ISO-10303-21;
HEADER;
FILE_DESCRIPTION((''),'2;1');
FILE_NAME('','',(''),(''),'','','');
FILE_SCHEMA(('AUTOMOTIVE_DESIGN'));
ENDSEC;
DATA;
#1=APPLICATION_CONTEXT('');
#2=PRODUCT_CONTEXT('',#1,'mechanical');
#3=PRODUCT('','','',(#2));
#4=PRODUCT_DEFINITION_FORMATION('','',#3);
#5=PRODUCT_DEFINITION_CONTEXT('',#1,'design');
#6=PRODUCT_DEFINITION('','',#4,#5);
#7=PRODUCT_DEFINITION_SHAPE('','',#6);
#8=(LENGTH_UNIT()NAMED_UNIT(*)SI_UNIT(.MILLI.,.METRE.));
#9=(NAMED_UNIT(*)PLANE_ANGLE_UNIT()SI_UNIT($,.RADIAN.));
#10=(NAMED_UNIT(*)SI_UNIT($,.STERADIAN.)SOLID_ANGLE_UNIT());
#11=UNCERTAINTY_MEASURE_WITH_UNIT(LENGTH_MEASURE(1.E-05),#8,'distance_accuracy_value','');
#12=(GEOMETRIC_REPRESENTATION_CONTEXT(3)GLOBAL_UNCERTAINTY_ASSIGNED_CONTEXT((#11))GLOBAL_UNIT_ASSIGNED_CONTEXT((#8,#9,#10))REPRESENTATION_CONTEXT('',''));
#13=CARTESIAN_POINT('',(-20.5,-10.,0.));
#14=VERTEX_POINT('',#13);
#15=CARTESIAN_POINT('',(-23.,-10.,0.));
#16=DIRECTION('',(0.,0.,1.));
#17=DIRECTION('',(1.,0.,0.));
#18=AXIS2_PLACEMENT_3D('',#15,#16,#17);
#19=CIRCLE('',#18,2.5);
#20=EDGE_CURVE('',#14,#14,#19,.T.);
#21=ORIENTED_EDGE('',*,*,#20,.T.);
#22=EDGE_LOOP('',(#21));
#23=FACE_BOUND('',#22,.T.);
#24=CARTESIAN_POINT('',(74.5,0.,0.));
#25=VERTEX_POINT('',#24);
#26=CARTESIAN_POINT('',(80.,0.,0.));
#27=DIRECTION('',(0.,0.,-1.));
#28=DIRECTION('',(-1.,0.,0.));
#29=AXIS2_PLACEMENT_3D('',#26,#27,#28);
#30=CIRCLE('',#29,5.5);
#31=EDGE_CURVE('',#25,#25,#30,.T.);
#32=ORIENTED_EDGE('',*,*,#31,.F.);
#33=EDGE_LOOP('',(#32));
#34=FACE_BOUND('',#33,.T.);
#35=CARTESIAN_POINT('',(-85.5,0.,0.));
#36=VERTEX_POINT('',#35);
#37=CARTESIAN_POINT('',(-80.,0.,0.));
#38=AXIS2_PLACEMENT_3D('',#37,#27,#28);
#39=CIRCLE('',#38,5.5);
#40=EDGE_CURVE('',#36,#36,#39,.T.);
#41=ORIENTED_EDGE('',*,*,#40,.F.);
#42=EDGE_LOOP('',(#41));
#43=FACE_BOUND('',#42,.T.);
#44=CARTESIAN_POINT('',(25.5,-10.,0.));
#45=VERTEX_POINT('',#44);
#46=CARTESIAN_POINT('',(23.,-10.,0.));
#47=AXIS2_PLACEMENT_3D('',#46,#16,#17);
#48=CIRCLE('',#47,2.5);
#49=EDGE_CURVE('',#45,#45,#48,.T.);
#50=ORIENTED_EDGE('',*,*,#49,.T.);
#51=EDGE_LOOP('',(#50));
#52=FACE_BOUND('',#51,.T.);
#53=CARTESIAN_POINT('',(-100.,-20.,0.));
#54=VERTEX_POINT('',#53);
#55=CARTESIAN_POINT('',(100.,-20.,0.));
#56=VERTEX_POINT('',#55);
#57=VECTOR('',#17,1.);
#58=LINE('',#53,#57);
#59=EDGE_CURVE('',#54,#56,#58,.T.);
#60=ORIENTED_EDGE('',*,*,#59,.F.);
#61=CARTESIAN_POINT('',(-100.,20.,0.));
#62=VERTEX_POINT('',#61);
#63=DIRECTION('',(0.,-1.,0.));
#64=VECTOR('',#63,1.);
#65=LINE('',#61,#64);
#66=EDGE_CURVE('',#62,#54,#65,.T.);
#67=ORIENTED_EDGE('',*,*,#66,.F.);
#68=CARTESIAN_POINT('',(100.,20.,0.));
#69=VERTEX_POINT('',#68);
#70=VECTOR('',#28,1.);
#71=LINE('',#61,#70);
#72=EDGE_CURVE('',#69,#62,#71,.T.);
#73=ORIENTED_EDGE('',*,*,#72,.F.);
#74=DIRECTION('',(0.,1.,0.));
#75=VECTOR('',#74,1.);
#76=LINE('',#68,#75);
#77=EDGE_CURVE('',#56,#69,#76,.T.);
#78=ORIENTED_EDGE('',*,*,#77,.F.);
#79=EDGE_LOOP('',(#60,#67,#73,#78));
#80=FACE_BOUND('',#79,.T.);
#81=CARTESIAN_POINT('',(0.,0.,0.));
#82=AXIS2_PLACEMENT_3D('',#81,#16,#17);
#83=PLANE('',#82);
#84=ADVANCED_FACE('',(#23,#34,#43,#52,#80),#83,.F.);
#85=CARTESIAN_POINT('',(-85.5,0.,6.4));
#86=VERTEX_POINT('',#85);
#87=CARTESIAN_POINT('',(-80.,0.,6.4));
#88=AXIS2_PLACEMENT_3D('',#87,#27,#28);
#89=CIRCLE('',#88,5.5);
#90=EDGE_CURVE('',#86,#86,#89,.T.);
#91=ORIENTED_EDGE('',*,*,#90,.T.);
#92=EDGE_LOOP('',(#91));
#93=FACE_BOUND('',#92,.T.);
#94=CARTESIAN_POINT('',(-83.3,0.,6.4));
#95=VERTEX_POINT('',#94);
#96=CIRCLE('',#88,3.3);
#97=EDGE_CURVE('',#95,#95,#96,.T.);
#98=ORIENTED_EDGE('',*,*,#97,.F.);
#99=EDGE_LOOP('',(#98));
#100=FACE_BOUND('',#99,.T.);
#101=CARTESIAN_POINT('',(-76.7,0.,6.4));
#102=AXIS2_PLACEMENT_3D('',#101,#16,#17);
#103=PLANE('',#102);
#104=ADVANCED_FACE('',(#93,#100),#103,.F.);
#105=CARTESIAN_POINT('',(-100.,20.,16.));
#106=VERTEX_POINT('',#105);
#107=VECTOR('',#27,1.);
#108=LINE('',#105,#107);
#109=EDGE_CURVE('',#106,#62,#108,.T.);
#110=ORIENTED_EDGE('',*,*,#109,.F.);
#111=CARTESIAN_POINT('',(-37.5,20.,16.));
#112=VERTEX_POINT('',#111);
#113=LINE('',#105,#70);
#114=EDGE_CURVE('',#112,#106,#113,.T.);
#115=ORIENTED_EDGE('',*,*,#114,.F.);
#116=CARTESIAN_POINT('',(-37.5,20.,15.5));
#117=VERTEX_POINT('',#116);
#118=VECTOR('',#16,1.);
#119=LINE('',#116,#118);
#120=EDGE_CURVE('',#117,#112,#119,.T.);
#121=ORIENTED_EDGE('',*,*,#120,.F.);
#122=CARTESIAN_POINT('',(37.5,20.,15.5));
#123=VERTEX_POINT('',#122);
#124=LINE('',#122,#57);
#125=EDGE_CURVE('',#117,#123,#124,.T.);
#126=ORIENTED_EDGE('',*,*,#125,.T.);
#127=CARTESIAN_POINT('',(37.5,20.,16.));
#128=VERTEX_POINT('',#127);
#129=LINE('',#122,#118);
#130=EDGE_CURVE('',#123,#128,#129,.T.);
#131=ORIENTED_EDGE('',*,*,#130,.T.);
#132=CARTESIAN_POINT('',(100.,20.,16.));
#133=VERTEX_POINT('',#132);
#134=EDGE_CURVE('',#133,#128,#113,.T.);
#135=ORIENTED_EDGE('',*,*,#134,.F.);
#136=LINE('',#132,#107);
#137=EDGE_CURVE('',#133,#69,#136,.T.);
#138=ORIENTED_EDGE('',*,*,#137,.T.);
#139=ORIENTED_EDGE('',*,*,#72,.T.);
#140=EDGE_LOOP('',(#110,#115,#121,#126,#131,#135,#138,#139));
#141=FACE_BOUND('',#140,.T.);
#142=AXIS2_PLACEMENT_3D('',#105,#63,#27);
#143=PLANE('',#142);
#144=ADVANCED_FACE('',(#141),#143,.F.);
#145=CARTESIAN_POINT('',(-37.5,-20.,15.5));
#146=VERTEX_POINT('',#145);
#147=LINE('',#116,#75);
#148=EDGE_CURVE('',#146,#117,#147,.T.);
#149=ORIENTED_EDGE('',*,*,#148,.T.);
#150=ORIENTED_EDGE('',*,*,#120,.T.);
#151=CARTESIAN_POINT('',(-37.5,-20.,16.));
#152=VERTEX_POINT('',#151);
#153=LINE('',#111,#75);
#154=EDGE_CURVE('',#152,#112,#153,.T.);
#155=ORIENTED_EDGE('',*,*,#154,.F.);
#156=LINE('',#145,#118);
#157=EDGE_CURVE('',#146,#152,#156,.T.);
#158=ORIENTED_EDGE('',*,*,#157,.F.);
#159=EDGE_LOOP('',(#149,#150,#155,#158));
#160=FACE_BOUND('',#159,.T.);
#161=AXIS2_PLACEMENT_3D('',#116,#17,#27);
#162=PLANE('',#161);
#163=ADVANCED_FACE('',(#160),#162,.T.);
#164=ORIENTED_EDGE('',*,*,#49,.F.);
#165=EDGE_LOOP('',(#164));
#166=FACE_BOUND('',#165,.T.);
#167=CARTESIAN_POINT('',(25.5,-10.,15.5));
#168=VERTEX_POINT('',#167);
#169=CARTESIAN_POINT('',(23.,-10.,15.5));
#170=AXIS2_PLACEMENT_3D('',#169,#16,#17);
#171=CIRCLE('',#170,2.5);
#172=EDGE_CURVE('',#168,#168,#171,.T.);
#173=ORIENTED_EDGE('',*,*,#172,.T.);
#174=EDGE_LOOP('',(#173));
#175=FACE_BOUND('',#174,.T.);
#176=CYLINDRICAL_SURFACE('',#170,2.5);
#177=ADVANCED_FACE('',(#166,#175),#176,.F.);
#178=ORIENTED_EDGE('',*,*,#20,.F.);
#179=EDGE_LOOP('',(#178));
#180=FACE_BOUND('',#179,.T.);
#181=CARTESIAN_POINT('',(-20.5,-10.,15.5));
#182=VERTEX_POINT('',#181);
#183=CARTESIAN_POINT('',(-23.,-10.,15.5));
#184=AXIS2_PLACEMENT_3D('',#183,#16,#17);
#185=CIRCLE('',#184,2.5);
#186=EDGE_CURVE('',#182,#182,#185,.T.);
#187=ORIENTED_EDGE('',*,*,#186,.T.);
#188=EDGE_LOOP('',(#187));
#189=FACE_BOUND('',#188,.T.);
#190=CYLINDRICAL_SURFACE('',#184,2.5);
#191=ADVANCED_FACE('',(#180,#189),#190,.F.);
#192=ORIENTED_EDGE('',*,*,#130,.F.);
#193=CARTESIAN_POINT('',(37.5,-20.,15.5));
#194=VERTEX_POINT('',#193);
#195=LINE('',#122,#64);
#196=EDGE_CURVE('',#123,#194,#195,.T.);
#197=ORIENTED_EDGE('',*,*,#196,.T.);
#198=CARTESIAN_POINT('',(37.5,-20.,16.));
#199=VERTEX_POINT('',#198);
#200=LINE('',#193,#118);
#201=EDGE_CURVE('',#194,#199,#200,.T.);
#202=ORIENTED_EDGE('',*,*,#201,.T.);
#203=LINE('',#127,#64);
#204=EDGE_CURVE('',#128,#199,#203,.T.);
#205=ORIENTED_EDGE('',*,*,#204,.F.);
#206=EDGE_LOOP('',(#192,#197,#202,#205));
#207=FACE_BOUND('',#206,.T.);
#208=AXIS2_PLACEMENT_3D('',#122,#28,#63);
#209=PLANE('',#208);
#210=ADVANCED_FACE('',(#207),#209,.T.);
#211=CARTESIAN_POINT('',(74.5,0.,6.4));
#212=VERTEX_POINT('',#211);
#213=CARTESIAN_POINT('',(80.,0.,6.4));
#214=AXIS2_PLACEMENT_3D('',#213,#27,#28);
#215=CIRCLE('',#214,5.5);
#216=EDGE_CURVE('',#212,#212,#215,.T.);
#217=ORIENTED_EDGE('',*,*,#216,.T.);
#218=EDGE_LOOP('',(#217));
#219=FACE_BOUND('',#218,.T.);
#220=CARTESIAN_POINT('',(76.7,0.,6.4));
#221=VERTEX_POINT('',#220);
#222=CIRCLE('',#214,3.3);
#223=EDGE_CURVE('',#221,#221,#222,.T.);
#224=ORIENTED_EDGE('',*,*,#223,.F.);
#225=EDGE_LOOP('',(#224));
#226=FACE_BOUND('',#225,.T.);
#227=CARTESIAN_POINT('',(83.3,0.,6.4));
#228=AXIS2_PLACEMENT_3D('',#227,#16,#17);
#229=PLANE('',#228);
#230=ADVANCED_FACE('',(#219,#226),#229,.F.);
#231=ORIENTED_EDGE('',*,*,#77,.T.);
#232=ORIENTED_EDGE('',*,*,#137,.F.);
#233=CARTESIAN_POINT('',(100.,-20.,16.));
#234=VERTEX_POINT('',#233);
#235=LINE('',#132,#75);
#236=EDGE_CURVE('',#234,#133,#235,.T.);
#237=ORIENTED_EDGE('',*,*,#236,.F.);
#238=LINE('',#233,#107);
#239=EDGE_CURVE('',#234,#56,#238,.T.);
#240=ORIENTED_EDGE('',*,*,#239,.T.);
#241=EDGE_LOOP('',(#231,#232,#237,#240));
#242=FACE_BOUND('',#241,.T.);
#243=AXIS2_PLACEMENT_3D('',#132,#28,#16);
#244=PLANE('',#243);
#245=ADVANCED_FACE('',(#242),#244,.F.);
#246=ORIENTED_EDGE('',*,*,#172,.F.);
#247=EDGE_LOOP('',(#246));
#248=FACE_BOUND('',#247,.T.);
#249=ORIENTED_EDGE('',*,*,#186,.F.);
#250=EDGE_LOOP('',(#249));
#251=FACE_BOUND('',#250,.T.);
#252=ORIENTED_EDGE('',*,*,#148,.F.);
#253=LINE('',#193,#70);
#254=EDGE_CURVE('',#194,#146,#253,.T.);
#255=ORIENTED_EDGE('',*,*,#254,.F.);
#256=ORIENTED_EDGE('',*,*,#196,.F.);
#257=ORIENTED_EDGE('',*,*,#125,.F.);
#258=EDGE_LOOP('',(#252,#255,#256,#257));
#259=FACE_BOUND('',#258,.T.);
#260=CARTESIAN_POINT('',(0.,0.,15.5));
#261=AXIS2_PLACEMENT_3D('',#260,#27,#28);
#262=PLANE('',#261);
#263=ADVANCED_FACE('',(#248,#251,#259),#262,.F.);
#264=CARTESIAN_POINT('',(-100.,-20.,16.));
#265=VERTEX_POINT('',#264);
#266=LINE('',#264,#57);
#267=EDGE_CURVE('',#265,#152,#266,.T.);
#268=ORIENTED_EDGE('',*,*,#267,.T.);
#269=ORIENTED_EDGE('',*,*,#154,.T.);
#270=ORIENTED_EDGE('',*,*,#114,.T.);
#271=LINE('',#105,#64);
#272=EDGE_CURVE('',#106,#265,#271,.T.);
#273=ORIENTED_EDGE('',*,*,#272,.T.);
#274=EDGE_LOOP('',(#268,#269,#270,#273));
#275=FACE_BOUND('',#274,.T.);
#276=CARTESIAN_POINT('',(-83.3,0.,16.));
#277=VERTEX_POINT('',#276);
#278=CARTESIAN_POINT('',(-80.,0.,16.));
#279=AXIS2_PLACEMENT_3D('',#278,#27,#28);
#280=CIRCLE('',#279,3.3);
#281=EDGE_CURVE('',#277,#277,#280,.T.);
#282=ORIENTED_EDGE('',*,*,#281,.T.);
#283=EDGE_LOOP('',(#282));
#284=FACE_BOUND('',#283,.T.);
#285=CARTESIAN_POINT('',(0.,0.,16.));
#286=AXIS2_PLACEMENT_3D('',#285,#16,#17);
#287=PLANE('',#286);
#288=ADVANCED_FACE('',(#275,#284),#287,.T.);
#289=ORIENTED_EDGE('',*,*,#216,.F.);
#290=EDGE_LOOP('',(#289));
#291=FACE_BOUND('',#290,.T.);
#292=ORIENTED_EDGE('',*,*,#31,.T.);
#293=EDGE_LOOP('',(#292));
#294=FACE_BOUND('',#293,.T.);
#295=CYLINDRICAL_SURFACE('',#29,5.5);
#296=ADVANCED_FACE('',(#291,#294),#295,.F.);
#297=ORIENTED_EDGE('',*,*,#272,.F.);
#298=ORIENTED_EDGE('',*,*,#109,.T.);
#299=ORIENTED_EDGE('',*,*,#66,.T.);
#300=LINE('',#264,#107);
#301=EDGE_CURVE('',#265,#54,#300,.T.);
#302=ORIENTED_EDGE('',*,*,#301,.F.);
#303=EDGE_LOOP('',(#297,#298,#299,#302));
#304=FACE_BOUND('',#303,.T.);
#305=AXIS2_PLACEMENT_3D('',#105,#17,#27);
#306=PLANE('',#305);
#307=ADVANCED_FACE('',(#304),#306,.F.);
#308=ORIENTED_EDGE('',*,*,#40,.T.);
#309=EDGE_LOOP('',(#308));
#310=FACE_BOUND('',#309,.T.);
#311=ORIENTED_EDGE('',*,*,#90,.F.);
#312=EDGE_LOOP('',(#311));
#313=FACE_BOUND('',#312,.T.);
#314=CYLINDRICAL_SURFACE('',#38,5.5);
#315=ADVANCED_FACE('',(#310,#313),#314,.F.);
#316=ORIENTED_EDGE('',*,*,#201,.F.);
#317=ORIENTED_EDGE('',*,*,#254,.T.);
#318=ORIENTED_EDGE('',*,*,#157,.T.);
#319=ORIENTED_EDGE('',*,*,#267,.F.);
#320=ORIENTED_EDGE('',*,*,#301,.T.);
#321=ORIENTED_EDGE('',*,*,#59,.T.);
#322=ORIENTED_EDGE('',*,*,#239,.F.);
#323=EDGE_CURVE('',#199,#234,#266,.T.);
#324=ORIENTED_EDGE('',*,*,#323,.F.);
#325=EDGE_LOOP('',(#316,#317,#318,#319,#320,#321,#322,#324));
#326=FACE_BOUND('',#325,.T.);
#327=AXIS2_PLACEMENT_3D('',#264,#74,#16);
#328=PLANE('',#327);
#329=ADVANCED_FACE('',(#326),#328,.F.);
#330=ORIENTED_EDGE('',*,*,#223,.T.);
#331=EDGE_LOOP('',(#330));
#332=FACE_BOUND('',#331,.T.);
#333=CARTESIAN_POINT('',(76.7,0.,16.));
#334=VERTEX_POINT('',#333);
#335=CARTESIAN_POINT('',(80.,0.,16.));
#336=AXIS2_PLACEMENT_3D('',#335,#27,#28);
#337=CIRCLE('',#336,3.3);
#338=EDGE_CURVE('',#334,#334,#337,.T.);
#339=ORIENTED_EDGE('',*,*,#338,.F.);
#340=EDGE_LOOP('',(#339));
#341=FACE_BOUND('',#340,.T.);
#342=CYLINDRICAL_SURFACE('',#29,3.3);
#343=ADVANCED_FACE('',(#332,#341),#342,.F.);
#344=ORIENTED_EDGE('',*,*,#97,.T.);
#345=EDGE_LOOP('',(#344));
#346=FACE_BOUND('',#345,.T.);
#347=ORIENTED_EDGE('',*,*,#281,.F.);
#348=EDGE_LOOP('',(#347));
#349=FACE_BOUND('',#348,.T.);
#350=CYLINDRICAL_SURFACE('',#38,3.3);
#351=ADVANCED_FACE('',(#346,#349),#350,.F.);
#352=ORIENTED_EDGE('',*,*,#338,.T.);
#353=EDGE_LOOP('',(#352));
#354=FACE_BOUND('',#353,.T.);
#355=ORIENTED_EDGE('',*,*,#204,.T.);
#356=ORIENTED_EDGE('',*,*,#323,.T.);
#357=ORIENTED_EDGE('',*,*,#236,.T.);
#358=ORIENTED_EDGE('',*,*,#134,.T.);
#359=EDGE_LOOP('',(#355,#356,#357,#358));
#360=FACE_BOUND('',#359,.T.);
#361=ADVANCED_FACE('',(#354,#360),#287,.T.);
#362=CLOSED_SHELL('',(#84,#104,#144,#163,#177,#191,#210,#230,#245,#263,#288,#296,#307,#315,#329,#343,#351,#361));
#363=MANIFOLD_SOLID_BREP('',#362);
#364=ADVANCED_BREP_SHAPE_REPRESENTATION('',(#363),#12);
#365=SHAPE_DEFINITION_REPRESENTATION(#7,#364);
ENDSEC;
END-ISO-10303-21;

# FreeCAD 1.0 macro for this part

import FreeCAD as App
import Part
import Sketcher
from FreeCAD import Vector

doc = App.newDocument("Part")
params = doc.addObject("Spreadsheet::Sheet", "Params")
for row, (alias, value) in enumerate([
    ("sketch1_width", "200 mm"),
    ("sketch1_height", "40 mm"),
    ("pad1_length", "16 mm"),
    ("sketch2_width", "75 mm"),
    ("sketch2_height", "40 mm"),
    ("pocket1_length", "0.5 mm"),
    ("sketch3_diameter", "5 mm"),
    ("hole_diameter", "5 mm"),
    ("sketch4_diameter", "6.6 mm"),
    ("hole2_diameter", "6.6 mm"),
    ("hole2_cbore_diameter", "11 mm"),
    ("hole2_cbore_depth", "6.4 mm"),
], start=1):
    params.set(f"A{row}", alias)
    params.set(f"B{row}", "=" + value)
    params.setAlias(f"B{row}", alias)

body = doc.addObject("PartDesign::Body", "Body")

sketch1 = body.newObject("Sketcher::SketchObject", "Sketch")
sketch1.AttachmentSupport = (doc.getObject("XY_Plane"), [""])
sketch1.MapMode = "FlatFace"
sketch1.addGeometry([
    Part.LineSegment(Vector(-100, 20, 0), Vector(-100, -20, 0)),
    Part.LineSegment(Vector(-100, -20, 0), Vector(100, -20, 0)),
    Part.LineSegment(Vector(100, -20, 0), Vector(100, 20, 0)),
    Part.LineSegment(Vector(100, 20, 0), Vector(-100, 20, 0)),
], False)
sketch1.addConstraint([
    Sketcher.Constraint("Coincident", 0, 2, 1, 1),
    Sketcher.Constraint("Coincident", 1, 2, 2, 1),
    Sketcher.Constraint("Coincident", 2, 2, 3, 1),
    Sketcher.Constraint("Coincident", 3, 2, 0, 1),
    Sketcher.Constraint("Vertical", 0),
    Sketcher.Constraint("Horizontal", 1),
    Sketcher.Constraint("Vertical", 2),
    Sketcher.Constraint("Horizontal", 3),
    Sketcher.Constraint("Symmetric", 0, 2, 2, 2, -1, 1),
    Sketcher.Constraint("DistanceX", 1, 1, 1, 2, 200.0),
    Sketcher.Constraint("DistanceY", 0, 2, 0, 1, 40.0),
])
sketch1.setExpression("Constraints[9]", "Params.sketch1_width")
sketch1.setExpression("Constraints[10]", "Params.sketch1_height")
pad1 = body.newObject("PartDesign::Pad", "Pad")
pad1.Profile = sketch1
pad1.setExpression("Length", "Params.pad1_length")

sketch2 = body.newObject("Sketcher::SketchObject", "Sketch001")
sketch2.AttachmentSupport = (doc.getObject("XY_Plane"), [""])
sketch2.MapMode = "FlatFace"
sketch2.AttachmentOffset = App.Placement(Vector(0, 0, 16), App.Rotation())
sketch2.addGeometry([
    Part.LineSegment(Vector(37.5, 20, 0), Vector(37.5, -20, 0)),
    Part.LineSegment(Vector(37.5, -20, 0), Vector(-37.5, -20, 0)),
    Part.LineSegment(Vector(-37.5, -20, 0), Vector(-37.5, 20, 0)),
    Part.LineSegment(Vector(-37.5, 20, 0), Vector(37.5, 20, 0)),
], False)
sketch2.addConstraint([
    Sketcher.Constraint("Coincident", 0, 2, 1, 1),
    Sketcher.Constraint("Coincident", 1, 2, 2, 1),
    Sketcher.Constraint("Coincident", 2, 2, 3, 1),
    Sketcher.Constraint("Coincident", 3, 2, 0, 1),
    Sketcher.Constraint("Vertical", 0),
    Sketcher.Constraint("Horizontal", 1),
    Sketcher.Constraint("Vertical", 2),
    Sketcher.Constraint("Horizontal", 3),
    Sketcher.Constraint("Symmetric", 0, 2, 2, 2, -1, 1),
    Sketcher.Constraint("DistanceX", 1, 2, 1, 1, 75.0),
    Sketcher.Constraint("DistanceY", 0, 2, 0, 1, 40.0),
])
sketch2.setExpression("Constraints[9]", "Params.sketch2_width")
sketch2.setExpression("Constraints[10]", "Params.sketch2_height")
pocket1 = body.newObject("PartDesign::Pocket", "Pocket")
pocket1.Profile = sketch2
pocket1.setExpression("Length", "Params.pocket1_length")

sketch3 = body.newObject("Sketcher::SketchObject", "Sketch002")
sketch3.AttachmentSupport = (doc.getObject("XY_Plane"), [""])
sketch3.MapMode = "FlatFace"
sketch3.AttachmentOffset = App.Placement(Vector(0, 0, 15.5), App.Rotation())
sketch3.addGeometry([
    Part.Circle(Vector(-23, -10, 0), Vector(0, 0, 1), 2.5),
    Part.Circle(Vector(23, -10, 0), Vector(0, 0, 1), 2.5),
], False)
sketch3.addConstraint([
    Sketcher.Constraint("Equal", 0, 1),
    Sketcher.Constraint("Symmetric", 0, 3, 1, 3, -2),
    Sketcher.Constraint("Diameter", 0, 5.0),
    Sketcher.Constraint("DistanceX", 0, 3, -1, 1, 23.0),
    Sketcher.Constraint("DistanceY", 0, 3, -1, 1, 10.0),
])
sketch3.setExpression("Constraints[2]", "Params.sketch3_diameter")
doc.recompute()
hole = body.newObject("PartDesign::Hole", "Hole")
hole.Profile = sketch3
hole.ThreadType = "None"
hole.setExpression("Diameter", "Params.hole_diameter")
hole.DepthType = "ThroughAll"

sketch4 = body.newObject("Sketcher::SketchObject", "Sketch003")
sketch4.AttachmentSupport = (doc.getObject("XY_Plane"), [""])
sketch4.MapMode = "FlatFace"
sketch4.addGeometry([
    Part.Circle(Vector(80, 0, 0), Vector(0, 0, 1), 3.3),
    Part.Circle(Vector(-80, 0, 0), Vector(0, 0, 1), 3.3),
], False)
sketch4.addConstraint([
    Sketcher.Constraint("Equal", 0, 1),
    Sketcher.Constraint("Symmetric", 0, 3, 1, 3, -1, 1),
    Sketcher.Constraint("PointOnObject", 0, 3, -1),
    Sketcher.Constraint("Diameter", 0, 6.6),
    Sketcher.Constraint("DistanceX", -1, 1, 0, 3, 80.0),
])
sketch4.setExpression("Constraints[3]", "Params.sketch4_diameter")
doc.recompute()
hole2 = body.newObject("PartDesign::Hole", "Hole001")
hole2.Profile = sketch4
hole2.ThreadType = "None"
hole2.setExpression("Diameter", "Params.hole2_diameter")
hole2.DepthType = "ThroughAll"
hole2.HoleCutType = "Counterbore"
hole2.setExpression("HoleCutDiameter", "Params.hole2_cbore_diameter")
hole2.setExpression("HoleCutDepth", "Params.hole2_cbore_depth")
hole2.Reversed = True

doc.recompute()
